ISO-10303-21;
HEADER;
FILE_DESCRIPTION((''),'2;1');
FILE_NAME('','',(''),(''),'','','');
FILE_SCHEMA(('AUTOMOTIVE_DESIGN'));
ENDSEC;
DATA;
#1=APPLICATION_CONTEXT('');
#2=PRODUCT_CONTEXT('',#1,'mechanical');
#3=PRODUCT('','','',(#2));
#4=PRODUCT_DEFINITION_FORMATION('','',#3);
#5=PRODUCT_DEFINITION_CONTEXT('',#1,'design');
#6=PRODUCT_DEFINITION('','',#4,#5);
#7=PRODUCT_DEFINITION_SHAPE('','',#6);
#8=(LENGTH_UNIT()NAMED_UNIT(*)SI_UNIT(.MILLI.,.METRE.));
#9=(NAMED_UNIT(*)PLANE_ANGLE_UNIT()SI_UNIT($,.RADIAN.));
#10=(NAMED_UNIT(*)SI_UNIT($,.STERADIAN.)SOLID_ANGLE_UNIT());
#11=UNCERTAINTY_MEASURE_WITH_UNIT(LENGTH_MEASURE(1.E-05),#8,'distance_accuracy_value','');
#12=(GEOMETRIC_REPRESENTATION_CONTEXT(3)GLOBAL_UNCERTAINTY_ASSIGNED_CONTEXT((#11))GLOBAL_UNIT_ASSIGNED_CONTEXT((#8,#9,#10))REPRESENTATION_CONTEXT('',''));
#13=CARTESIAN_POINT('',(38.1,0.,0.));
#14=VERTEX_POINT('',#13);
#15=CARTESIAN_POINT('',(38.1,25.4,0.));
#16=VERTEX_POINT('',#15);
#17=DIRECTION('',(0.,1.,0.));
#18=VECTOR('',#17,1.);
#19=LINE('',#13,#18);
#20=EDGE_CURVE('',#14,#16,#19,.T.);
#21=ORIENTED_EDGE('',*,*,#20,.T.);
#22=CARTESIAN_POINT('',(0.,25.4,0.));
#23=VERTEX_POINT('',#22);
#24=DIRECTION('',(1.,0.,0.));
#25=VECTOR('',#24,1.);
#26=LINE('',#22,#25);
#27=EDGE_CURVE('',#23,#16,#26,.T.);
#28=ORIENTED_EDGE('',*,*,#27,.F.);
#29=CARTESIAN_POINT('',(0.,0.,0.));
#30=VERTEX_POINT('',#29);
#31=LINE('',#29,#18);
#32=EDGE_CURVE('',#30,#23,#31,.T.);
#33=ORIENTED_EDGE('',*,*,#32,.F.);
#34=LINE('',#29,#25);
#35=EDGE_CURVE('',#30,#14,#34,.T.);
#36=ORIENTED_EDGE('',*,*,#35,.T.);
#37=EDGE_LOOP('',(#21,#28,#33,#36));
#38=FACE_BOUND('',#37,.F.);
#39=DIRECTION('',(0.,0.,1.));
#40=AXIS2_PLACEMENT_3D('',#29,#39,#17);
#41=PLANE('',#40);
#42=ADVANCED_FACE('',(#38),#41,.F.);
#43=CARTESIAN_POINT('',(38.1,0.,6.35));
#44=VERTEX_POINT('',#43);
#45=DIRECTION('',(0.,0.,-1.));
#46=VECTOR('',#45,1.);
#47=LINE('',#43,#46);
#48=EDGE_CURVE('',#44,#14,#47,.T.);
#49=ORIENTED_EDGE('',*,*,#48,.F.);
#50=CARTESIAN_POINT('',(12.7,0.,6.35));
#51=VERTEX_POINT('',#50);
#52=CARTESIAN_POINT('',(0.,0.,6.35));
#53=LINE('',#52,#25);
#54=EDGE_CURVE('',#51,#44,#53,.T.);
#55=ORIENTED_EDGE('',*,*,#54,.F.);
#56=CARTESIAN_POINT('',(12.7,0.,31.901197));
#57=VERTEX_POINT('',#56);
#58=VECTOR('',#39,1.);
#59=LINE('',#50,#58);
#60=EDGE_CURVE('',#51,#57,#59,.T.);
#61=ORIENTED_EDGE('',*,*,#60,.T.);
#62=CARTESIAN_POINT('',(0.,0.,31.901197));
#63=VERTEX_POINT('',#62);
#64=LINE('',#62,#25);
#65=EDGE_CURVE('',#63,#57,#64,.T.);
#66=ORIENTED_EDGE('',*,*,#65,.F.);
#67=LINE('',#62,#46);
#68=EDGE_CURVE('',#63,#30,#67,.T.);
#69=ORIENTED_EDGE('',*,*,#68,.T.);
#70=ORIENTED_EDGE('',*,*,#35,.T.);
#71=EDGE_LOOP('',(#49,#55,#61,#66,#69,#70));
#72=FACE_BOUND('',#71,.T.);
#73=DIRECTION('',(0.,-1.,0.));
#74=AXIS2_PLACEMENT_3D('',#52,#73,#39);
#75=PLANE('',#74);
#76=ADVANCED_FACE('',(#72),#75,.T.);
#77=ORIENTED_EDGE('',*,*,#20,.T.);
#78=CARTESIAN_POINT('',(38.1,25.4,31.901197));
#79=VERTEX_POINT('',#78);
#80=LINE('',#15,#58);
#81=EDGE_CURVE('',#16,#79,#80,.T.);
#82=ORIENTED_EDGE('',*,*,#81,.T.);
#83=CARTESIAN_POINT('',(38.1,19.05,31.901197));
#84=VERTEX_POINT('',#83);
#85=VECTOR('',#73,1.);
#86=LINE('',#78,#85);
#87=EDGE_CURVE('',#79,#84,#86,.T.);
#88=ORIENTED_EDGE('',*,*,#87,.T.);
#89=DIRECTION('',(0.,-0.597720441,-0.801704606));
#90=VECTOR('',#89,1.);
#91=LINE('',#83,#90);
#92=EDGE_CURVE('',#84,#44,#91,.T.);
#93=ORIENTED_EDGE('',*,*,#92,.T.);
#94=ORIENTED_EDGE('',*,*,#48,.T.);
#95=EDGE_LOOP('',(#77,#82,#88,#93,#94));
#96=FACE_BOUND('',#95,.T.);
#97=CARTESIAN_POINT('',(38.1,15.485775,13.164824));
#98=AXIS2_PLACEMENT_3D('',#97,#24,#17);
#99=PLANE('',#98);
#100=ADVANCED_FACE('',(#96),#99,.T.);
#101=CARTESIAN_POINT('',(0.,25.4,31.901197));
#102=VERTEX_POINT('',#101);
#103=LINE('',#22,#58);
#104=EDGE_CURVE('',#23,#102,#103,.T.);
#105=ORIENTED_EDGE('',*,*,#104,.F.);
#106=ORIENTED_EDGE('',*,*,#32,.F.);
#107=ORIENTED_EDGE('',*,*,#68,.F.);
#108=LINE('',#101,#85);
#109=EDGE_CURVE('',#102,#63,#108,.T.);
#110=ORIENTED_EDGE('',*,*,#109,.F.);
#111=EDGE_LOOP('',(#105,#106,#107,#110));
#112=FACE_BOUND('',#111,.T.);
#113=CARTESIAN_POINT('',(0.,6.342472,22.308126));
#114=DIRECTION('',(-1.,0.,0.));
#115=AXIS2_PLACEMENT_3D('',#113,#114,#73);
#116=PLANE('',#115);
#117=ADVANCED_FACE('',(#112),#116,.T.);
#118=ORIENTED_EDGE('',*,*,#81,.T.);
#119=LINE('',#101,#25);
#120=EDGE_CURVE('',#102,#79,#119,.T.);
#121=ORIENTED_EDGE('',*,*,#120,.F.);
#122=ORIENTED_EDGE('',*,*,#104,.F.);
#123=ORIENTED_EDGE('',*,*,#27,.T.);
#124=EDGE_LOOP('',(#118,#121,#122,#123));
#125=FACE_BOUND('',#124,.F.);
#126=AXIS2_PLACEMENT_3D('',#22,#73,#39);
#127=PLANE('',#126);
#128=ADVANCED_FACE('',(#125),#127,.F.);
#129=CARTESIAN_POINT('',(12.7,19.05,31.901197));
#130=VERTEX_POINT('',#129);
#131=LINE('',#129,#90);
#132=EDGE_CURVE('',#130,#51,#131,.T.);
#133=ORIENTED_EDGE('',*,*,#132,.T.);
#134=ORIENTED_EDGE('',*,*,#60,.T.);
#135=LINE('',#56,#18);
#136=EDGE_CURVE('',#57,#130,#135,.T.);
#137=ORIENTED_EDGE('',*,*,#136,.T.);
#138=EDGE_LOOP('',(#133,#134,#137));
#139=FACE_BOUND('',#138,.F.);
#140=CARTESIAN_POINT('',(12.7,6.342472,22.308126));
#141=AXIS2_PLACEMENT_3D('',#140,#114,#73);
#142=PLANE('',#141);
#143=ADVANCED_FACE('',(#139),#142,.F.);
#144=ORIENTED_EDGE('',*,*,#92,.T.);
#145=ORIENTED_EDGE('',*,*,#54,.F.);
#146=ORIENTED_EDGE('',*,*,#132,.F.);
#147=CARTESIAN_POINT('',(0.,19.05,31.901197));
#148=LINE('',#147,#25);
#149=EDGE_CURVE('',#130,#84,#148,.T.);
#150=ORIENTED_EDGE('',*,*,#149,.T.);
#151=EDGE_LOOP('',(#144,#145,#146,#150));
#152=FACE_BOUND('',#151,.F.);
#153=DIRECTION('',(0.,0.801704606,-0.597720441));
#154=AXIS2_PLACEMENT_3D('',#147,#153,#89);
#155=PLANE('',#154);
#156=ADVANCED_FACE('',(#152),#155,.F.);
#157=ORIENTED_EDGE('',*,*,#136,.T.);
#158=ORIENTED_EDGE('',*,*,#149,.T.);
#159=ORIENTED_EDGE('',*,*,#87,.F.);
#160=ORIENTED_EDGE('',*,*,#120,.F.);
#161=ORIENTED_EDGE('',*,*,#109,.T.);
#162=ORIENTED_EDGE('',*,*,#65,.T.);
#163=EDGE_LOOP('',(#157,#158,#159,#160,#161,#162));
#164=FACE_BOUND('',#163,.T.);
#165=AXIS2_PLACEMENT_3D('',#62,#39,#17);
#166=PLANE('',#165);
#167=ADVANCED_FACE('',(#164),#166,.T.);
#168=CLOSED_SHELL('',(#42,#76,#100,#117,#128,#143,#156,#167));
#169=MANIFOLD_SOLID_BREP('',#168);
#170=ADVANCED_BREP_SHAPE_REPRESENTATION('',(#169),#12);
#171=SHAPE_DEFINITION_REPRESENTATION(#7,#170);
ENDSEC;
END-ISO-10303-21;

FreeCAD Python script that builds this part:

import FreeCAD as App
import Part
import Sketcher
Q = App.Units.Quantity


def add_polygon(sketch, points):
    """Adds a closed chain of lines whose ends are joined by coincident constraints."""
    first, n = sketch.GeometryCount, len(points)
    for a, b in zip(points, points[1:] + points[:1]):
        sketch.addGeometry(Part.LineSegment(App.Vector(*a, 0), App.Vector(*b, 0)), False)
    for i in range(n):
        sketch.addConstraint(Sketcher.Constraint("Coincident", first + i, 2, first + (i + 1) % n, 1))

doc = App.newDocument("Part")
body = doc.addObject("PartDesign::Body", "Body")

# Sketch on YZ plane
sketch1 = doc.addObject("Sketcher::SketchObject", "Sketch")
body.addObject(sketch1)
sketch1.AttachmentSupport = (doc.YZ_Plane, [""])
sketch1.MapMode = "FlatFace"
add_polygon(sketch1, [(0, 6), (0, 0), (25, 0), (25, 32), (19, 32)])  # lines 0-4
sketch1.addConstraint([
    Sketcher.Constraint("Vertical", 0),
    Sketcher.Constraint("Horizontal", 1),
    Sketcher.Constraint("Vertical", 2),
    Sketcher.Constraint("Horizontal", 3),
    Sketcher.Constraint("Coincident", 0, 2, -1, 1),
    Sketcher.Constraint("Equal", 3, 0),
    Sketcher.Constraint("DistanceX", 1, 1, 1, 2, Q("1 in")),
    Sketcher.Constraint("DistanceX", 3, 2, 3, 1, Q("0.25 in")),
    Sketcher.Constraint("DistanceY", 2, 1, 2, 2, Q("31.901197 mm")),
])
pad1 = doc.addObject("PartDesign::Pad", "Pad")
body.addObject(pad1)
pad1.Profile = sketch1
pad1.Length = Q("1.5 in")

# Sketch on YZ plane
sketch2 = doc.addObject("Sketcher::SketchObject", "Sketch001")
body.addObject(sketch2)
sketch2.AttachmentSupport = (doc.YZ_Plane, [""])
sketch2.MapMode = "FlatFace"
add_polygon(sketch2, [(0, 32), (19, 32), (0, 6)])  # lines 0-2
sketch2.addConstraint([
    Sketcher.Constraint("Horizontal", 0),
    Sketcher.Constraint("Vertical", 2),
    Sketcher.Constraint("PointOnObject", 1, 2, -2),
    Sketcher.Constraint("DistanceX", 0, 1, 0, 2, Q("0.75 in")),
    Sketcher.Constraint("DistanceY", -1, 1, 1, 2, Q("0.25 in")),
    Sketcher.Constraint("DistanceY", 2, 1, 2, 2, Q("25.551197 mm")),
])
pad2 = doc.addObject("PartDesign::Pad", "Pad001")
body.addObject(pad2)
pad2.Profile = sketch2
pad2.Length = Q("0.5 in")

doc.recompute()
